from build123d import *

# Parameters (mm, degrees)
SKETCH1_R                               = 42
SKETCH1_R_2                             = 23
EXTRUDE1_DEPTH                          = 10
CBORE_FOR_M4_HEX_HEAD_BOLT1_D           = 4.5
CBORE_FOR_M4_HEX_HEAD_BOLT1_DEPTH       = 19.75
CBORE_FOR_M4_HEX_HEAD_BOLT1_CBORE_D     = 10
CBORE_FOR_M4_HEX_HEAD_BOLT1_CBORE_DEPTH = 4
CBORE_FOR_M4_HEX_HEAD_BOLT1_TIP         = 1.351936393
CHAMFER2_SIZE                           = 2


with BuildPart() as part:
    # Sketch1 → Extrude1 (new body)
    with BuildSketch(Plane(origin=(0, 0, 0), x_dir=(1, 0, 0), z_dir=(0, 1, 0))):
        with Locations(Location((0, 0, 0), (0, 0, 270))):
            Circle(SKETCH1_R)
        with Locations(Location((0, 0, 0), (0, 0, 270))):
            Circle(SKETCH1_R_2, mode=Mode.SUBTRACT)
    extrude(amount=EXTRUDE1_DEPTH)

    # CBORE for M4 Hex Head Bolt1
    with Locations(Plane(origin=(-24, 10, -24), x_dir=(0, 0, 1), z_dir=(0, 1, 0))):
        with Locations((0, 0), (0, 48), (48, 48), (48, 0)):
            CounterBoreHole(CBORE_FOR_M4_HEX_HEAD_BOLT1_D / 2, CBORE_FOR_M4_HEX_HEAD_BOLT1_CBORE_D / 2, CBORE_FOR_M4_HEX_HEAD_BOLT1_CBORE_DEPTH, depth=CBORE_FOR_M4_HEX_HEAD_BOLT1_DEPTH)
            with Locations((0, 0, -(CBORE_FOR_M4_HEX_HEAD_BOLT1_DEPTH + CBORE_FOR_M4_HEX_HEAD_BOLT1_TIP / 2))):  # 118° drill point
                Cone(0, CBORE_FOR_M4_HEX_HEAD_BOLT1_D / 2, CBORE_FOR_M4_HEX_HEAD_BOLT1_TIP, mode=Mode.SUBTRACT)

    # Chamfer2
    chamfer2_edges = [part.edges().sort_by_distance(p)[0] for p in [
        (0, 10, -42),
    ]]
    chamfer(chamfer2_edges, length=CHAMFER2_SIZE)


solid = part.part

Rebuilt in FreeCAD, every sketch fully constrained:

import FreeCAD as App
import Part
import Sketcher

V = App.Vector
Q = App.Units.Quantity


def edges_at(feature, points):
    """Names of the edges that pass closest to the given points."""
    edges = feature.Shape.Edges
    near = lambda p: min(range(len(edges)), key=lambda i: edges[i].distToShape(Part.Vertex(*p))[0])
    return sorted({f"Edge{near(p) + 1}" for p in points})

doc = App.newDocument("Part")
body = doc.addObject("PartDesign::Body", "Body")

# Sketch on XZ plane
sketch1 = body.newObject("Sketcher::SketchObject", "Sketch")
sketch1.AttachmentSupport = (doc.getObject("XZ_Plane"), [""])
sketch1.MapMode = "FlatFace"
sketch1.addGeometry([
    Part.Circle(V(0, 0, 0), V(0, 0, 1), 42),
    Part.Circle(V(0, 0, 0), V(0, 0, 1), 23),
], False)
sketch1.addConstraint([
    Sketcher.Constraint("Coincident", 0, 3, -1, 1),
    Sketcher.Constraint("Coincident", 1, 3, -1, 1),
    Sketcher.Constraint("Diameter", 0, Q("84 mm")),
    Sketcher.Constraint("Diameter", 1, Q("46 mm")),
])
pad1 = body.newObject("PartDesign::Pad", "Pad")
pad1.Profile = sketch1
pad1.Length = 10
pad1.Reversed = True

# Sketch on XZ plane
sketch2 = body.newObject("Sketcher::SketchObject", "Sketch001")
sketch2.AttachmentSupport = (doc.getObject("XZ_Plane"), [""])
sketch2.MapMode = "FlatFace"
sketch2.AttachmentOffset = App.Placement(V(0, 0, -10), App.Rotation())
sketch2.addGeometry([
    Part.Circle(V(-24, -24, 0), V(0, 0, 1), 2.2),
    Part.Circle(V(24, -24, 0), V(0, 0, 1), 2.2),
    Part.Circle(V(24, 24, 0), V(0, 0, 1), 2.2),
    Part.Circle(V(-24, 24, 0), V(0, 0, 1), 2.2),
], False)
sketch2.addConstraint([
    Sketcher.Constraint("Equal", 0, 1),
    Sketcher.Constraint("Equal", 1, 2),
    Sketcher.Constraint("Equal", 2, 3),
    Sketcher.Constraint("Symmetric", 0, 3, 2, 3, -1, 1),
    Sketcher.Constraint("Symmetric", 1, 3, 3, 3, -1, 1),
    Sketcher.Constraint("Symmetric", 0, 3, 1, 3, -2),
    Sketcher.Constraint("Diameter", 0, Q("4.5 mm")),
    Sketcher.Constraint("DistanceX", 0, 3, -1, 1, Q("24 mm")),
    Sketcher.Constraint("DistanceY", 0, 3, -1, 1, Q("24 mm")),
])
doc.recompute()
hole = body.newObject("PartDesign::Hole", "Hole")
hole.Profile = sketch2
hole.ThreadType = "None"
hole.Diameter = 4.5
hole.DepthType = "Dimension"
hole.Depth = 19.75
hole.DrillPoint = "Angled"
hole.DrillPointAngle = 118
hole.HoleCutType = "Counterbore"
hole.HoleCutDiameter = 10
hole.HoleCutDepth = 4
hole.Reversed = True
doc.recompute()

chamfer = body.newObject("PartDesign::Chamfer", "Chamfer")
chamfer.Base = (hole, edges_at(hole, [(0, 10, -42)]))
chamfer.Size = 2

doc.recompute()
